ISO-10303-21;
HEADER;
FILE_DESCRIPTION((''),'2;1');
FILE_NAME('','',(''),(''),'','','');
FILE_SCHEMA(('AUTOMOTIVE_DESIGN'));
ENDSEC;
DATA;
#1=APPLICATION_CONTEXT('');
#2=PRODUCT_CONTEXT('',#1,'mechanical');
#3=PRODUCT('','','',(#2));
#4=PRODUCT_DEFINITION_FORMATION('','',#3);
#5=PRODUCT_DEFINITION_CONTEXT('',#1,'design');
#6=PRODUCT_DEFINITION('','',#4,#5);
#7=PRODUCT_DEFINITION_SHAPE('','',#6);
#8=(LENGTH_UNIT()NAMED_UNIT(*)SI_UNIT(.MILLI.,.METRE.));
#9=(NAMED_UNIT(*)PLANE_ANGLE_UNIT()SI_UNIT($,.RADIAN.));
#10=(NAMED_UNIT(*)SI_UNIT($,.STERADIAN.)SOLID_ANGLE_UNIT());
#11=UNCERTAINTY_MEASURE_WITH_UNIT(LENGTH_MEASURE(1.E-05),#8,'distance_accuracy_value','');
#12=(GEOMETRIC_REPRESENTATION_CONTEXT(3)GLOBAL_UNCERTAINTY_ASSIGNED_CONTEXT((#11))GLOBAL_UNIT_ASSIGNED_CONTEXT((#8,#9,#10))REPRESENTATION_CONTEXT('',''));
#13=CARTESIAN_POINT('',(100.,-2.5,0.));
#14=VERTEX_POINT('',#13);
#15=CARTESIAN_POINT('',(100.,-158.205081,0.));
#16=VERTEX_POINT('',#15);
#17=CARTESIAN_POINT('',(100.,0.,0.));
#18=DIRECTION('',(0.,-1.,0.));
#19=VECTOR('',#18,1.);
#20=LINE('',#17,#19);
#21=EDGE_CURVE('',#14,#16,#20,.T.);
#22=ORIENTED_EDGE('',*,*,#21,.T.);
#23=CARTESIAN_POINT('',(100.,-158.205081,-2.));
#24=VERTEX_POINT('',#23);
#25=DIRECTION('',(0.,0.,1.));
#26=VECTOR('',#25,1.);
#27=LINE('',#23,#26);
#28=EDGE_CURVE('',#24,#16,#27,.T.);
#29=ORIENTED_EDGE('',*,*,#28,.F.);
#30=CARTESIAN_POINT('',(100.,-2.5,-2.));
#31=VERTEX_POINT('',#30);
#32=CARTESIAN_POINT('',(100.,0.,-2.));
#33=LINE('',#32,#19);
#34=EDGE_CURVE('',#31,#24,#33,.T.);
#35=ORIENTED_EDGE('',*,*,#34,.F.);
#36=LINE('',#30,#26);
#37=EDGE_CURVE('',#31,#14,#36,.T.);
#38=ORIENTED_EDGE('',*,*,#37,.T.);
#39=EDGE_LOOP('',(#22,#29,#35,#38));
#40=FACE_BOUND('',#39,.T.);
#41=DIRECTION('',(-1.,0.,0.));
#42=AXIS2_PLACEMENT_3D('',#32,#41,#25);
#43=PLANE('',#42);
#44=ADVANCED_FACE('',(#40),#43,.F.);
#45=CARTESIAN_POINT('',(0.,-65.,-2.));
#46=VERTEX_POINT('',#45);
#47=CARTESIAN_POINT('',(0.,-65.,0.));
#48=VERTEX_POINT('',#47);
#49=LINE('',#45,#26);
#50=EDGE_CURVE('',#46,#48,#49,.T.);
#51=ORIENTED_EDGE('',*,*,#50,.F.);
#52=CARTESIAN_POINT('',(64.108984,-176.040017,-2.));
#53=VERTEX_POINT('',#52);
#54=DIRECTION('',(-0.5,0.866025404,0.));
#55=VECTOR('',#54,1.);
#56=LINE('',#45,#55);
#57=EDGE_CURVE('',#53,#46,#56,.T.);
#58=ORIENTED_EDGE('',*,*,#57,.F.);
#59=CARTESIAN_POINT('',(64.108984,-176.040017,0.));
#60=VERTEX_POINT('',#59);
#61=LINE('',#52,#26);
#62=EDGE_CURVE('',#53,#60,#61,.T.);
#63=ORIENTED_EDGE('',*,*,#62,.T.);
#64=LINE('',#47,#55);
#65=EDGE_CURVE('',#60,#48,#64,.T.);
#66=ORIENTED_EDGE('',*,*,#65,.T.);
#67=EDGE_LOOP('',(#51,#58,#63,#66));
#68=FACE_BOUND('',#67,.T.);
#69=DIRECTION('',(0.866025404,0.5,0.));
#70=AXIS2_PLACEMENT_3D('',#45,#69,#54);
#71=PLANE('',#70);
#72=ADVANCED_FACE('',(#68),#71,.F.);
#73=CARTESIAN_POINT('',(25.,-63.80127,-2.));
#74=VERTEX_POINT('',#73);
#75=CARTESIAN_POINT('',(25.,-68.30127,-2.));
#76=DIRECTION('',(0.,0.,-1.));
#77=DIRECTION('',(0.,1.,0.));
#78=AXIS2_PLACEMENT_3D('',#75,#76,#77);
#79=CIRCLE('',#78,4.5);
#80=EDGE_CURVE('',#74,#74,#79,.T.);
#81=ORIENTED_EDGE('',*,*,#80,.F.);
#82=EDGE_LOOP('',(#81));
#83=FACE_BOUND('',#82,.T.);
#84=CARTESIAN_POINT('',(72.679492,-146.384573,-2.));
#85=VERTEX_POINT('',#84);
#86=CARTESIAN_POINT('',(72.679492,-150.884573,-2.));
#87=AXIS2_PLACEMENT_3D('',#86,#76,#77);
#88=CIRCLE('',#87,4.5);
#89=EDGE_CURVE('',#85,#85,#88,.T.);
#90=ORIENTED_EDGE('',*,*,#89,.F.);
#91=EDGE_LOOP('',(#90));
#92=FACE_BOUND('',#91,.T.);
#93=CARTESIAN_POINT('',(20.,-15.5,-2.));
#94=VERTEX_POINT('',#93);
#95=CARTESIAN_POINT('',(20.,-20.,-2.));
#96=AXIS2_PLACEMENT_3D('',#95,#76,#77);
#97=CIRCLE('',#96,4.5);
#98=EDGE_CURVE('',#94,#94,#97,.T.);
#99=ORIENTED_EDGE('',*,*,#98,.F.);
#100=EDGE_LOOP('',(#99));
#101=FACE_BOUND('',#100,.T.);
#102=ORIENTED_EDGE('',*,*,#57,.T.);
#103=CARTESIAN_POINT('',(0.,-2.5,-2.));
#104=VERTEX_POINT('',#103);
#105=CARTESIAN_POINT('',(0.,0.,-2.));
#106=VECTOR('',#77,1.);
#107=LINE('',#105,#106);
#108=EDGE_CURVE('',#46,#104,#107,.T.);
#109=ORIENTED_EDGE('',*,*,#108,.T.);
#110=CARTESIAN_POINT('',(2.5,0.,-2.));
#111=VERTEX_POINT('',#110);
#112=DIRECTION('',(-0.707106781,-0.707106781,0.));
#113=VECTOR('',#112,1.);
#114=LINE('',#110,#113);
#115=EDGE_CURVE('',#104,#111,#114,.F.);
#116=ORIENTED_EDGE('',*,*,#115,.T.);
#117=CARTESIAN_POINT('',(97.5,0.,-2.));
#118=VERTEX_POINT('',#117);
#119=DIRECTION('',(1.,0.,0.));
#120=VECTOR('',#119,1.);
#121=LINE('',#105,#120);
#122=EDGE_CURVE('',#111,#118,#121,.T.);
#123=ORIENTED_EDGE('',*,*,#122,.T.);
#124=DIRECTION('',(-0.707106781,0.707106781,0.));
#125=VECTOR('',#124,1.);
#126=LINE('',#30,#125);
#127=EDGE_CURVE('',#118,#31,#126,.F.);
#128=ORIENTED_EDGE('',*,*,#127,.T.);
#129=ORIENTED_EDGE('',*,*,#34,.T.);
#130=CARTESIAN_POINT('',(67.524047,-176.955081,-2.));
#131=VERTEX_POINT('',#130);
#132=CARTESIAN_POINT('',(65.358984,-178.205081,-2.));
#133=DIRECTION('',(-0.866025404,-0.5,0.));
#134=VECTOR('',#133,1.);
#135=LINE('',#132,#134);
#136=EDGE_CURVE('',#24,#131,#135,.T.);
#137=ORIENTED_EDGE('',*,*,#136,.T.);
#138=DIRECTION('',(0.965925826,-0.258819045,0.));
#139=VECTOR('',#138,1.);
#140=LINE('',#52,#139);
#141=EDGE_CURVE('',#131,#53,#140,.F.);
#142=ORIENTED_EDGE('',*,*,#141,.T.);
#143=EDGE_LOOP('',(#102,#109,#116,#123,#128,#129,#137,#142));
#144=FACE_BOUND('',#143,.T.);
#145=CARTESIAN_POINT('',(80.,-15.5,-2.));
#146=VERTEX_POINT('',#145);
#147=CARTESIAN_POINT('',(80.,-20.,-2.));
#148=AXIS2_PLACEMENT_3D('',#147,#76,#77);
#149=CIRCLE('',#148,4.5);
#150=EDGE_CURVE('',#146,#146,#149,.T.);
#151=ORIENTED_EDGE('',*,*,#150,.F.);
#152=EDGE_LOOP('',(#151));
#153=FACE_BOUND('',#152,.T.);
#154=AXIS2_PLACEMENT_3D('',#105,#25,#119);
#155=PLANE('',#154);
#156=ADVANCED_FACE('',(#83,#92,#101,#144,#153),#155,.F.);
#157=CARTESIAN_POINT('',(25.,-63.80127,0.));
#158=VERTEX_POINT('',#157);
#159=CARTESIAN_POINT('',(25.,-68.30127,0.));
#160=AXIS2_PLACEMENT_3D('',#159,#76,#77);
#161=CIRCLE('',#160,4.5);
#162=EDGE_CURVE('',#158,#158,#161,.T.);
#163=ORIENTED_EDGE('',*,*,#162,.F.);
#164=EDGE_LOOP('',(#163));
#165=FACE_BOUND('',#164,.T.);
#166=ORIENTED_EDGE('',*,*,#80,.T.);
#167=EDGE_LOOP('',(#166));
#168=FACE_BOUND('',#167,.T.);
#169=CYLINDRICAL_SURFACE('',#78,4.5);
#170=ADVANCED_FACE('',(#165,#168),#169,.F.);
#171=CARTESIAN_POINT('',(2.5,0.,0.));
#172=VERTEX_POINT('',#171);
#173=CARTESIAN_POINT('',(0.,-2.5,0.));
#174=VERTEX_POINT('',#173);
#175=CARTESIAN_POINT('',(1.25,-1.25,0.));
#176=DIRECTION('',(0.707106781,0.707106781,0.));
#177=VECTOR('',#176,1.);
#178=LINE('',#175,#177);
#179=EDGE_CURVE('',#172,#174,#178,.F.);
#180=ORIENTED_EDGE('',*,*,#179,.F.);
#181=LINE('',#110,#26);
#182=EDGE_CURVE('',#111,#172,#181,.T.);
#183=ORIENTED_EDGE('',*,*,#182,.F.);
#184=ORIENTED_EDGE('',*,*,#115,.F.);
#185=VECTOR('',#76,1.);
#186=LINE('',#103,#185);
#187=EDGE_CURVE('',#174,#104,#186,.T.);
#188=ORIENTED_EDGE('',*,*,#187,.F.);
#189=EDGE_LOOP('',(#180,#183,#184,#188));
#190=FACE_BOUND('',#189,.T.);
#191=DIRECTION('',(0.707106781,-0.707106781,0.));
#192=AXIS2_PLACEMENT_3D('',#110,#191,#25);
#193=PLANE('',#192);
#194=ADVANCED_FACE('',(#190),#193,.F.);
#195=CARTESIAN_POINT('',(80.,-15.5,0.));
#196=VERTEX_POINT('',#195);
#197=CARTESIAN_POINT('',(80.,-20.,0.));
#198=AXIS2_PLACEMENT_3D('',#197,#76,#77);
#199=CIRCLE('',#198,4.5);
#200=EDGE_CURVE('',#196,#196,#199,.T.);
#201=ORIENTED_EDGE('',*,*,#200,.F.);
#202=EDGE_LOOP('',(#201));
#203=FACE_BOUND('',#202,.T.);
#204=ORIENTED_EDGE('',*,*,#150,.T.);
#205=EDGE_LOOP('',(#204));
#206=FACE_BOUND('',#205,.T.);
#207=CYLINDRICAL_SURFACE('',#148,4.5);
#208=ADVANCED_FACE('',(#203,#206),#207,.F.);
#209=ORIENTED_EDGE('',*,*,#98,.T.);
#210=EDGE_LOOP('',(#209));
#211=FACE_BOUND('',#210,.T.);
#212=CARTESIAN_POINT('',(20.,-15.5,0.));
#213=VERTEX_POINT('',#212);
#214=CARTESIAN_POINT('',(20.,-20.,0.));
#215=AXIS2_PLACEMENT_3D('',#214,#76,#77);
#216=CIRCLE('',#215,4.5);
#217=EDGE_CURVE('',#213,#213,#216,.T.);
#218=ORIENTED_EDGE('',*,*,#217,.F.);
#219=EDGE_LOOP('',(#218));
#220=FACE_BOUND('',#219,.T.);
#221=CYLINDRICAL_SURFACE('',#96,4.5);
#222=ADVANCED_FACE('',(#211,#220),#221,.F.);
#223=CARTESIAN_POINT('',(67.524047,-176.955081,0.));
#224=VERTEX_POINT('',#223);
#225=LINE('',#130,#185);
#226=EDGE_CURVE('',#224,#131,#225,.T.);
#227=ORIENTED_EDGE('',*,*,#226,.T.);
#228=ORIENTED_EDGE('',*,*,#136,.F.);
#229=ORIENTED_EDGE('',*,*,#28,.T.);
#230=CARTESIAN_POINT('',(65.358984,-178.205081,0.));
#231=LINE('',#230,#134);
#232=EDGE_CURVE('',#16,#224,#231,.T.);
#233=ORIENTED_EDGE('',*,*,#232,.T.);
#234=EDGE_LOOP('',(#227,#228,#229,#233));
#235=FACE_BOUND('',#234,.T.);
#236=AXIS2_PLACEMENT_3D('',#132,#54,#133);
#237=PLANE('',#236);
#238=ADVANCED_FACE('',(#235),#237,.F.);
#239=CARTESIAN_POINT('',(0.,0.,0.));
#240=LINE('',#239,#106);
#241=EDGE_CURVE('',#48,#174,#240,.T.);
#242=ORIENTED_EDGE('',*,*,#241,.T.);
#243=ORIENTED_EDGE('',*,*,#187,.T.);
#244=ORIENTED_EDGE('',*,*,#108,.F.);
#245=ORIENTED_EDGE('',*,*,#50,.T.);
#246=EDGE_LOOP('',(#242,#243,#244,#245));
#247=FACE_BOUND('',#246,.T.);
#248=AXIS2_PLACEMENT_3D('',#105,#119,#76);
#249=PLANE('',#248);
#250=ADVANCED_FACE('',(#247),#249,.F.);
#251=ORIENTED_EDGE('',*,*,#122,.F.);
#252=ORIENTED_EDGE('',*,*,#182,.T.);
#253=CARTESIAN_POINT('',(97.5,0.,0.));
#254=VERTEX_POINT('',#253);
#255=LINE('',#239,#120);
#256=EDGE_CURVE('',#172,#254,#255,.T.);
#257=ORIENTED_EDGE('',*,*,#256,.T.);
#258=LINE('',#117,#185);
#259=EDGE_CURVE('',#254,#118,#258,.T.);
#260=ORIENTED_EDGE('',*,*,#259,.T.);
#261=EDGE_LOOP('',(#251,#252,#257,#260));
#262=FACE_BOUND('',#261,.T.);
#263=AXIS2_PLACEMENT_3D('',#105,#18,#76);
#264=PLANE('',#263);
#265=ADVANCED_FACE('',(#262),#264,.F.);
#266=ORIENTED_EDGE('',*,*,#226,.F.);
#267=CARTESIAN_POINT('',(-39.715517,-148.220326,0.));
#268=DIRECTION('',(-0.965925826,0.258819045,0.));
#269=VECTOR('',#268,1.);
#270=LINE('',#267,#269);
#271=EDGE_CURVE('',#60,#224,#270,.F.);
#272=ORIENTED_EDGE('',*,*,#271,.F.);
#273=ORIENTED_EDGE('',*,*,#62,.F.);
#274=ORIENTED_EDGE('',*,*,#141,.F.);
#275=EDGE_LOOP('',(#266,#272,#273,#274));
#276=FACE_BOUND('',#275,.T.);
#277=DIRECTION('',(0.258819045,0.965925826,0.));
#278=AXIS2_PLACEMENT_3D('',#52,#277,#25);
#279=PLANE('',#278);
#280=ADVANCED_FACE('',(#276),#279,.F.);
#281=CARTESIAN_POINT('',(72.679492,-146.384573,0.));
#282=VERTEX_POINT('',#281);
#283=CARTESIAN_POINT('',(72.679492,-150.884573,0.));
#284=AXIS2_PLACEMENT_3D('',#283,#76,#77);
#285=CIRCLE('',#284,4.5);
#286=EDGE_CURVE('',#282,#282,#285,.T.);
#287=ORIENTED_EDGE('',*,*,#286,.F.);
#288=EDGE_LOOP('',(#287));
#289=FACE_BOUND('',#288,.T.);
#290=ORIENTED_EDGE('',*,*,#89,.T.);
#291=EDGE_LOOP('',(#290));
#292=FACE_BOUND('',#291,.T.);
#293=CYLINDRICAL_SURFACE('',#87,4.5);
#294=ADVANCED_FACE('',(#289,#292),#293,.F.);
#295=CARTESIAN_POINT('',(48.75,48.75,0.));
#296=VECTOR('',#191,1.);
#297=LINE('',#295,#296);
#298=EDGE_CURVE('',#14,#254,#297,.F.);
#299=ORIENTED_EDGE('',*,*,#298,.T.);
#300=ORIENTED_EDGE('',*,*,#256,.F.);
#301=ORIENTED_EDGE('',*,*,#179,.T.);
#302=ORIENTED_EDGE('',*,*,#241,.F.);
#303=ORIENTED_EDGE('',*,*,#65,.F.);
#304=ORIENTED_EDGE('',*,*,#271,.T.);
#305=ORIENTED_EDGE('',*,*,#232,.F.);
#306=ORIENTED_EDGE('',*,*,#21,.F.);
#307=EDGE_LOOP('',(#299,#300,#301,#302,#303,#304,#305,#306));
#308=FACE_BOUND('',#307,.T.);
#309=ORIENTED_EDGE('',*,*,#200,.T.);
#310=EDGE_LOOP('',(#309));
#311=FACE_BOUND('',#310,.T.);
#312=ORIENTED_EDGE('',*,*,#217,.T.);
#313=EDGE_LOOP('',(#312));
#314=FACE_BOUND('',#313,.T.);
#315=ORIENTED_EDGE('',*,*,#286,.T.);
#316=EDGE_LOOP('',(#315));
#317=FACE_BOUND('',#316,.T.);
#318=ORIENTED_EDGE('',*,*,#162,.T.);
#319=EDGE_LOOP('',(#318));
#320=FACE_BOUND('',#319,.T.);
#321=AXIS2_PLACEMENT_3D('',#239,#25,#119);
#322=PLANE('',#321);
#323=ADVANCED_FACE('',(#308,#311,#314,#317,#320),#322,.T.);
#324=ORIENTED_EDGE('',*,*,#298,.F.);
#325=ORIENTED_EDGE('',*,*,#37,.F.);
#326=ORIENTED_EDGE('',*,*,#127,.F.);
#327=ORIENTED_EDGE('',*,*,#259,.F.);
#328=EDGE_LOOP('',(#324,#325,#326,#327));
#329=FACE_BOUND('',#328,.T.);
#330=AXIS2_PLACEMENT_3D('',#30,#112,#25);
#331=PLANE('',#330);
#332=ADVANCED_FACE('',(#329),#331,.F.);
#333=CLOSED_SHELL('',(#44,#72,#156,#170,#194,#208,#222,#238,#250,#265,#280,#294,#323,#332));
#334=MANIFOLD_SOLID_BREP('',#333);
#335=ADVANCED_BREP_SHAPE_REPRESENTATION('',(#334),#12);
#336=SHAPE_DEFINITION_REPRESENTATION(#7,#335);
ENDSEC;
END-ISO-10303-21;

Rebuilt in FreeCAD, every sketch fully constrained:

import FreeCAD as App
import Part
import Sketcher
Q = App.Units.Quantity


def edges_at(feature, points):
    """Names of the edges that pass closest to the given points."""
    edges = feature.Shape.Edges
    near = lambda p: min(range(len(edges)), key=lambda i: edges[i].distToShape(Part.Vertex(*p))[0])
    return sorted({f"Edge{near(p) + 1}" for p in points})

doc = App.newDocument("Part")
body = doc.addObject("PartDesign::Body", "Body")

sketch1 = body.newObject("Sketcher::SketchObject", "Sketch")
sketch1.AttachmentSupport = (doc.getObject("XY_Plane"), [""])
sketch1.MapMode = "FlatFace"
sketch1.addGeometry([
    Part.LineSegment(App.Vector(0, 0, 0), App.Vector(100, 0, 0)),
    Part.LineSegment(App.Vector(100, 0, 0), App.Vector(100, -158, 0)),
    Part.LineSegment(App.Vector(100, -158, 0), App.Vector(65, -178, 0)),
    Part.LineSegment(App.Vector(65, -178, 0), App.Vector(0, -65, 0)),
    Part.LineSegment(App.Vector(0, -65, 0), App.Vector(0, 0, 0)),
], False)
sketch1.addConstraint([
    Sketcher.Constraint("Coincident", 0, 2, 1, 1),
    Sketcher.Constraint("Coincident", 1, 2, 2, 1),
    Sketcher.Constraint("Coincident", 2, 2, 3, 1),
    Sketcher.Constraint("Coincident", 3, 2, 4, 1),
    Sketcher.Constraint("Coincident", 4, 2, 0, 1),
    Sketcher.Constraint("Horizontal", 0),
    Sketcher.Constraint("Vertical", 1),
    Sketcher.Constraint("Vertical", 4),
    Sketcher.Constraint("Coincident", 4, 2, -1, 1),
    Sketcher.Constraint("Perpendicular", 2, 3),
    Sketcher.Constraint("DistanceX", 0, 1, 0, 2, 100.0),
    Sketcher.Constraint("DistanceY", 4, 1, 4, 2, 65.0),
    Sketcher.Constraint("Angle", 2, Q("-150 deg")),
    Sketcher.Constraint("Distance", 2, 40.0),
])
pad1 = body.newObject("PartDesign::Pad", "Pad")
pad1.Profile = sketch1
pad1.Length = 2
pad1.Reversed = True

sketch2 = body.newObject("Sketcher::SketchObject", "Sketch001")
sketch2.AttachmentSupport = (doc.getObject("XY_Plane"), [""])
sketch2.MapMode = "FlatFace"
sketch2.AttachmentOffset = App.Placement(App.Vector(0, 0, -2), App.Rotation())
sketch2.addGeometry([
    Part.Circle(App.Vector(20, -20, 0), App.Vector(0, 0, 1), 4.5),
    Part.Circle(App.Vector(80, -20, 0), App.Vector(0, 0, 1), 4.5),
    Part.Circle(App.Vector(25, -68.3, 0), App.Vector(0, 0, 1), 4.5),
    Part.Circle(App.Vector(72.7, -150.9, 0), App.Vector(0, 0, 1), 4.5),
], False)
sketch2.addConstraint([
    Sketcher.Constraint("Equal", 0, 1),
    Sketcher.Constraint("Equal", 1, 2),
    Sketcher.Constraint("Equal", 2, 3),
    Sketcher.Constraint("Horizontal", 0, 3, 1, 3),
    Sketcher.Constraint("Diameter", 0, 9.0),
    Sketcher.Constraint("DistanceX", -1, 1, 0, 3, 20.0),
    Sketcher.Constraint("DistanceY", 0, 3, -1, 1, 20.0),
    Sketcher.Constraint("DistanceX", -1, 1, 1, 3, 80.0),
    Sketcher.Constraint("DistanceX", -1, 1, 2, 3, 25.0),
    Sketcher.Constraint("DistanceY", 2, 3, -1, 1, 68.30127),
    Sketcher.Constraint("DistanceX", -1, 1, 3, 3, 72.679492),
    Sketcher.Constraint("DistanceY", 3, 3, -1, 1, 150.884573),
])
doc.recompute()
hole = body.newObject("PartDesign::Hole", "Hole")
hole.Profile = sketch2
hole.ThreadType = "None"
hole.Diameter = 9
hole.DepthType = "ThroughAll"
hole.Reversed = True
doc.recompute()

chamfer = body.newObject("PartDesign::Chamfer", "Chamfer")
chamfer.Base = (hole, edges_at(hole, [(65.359, -178.205, -1), (100, 0, -1), (0, 0, -1)]))
chamfer.Size = 2.5

doc.recompute()
